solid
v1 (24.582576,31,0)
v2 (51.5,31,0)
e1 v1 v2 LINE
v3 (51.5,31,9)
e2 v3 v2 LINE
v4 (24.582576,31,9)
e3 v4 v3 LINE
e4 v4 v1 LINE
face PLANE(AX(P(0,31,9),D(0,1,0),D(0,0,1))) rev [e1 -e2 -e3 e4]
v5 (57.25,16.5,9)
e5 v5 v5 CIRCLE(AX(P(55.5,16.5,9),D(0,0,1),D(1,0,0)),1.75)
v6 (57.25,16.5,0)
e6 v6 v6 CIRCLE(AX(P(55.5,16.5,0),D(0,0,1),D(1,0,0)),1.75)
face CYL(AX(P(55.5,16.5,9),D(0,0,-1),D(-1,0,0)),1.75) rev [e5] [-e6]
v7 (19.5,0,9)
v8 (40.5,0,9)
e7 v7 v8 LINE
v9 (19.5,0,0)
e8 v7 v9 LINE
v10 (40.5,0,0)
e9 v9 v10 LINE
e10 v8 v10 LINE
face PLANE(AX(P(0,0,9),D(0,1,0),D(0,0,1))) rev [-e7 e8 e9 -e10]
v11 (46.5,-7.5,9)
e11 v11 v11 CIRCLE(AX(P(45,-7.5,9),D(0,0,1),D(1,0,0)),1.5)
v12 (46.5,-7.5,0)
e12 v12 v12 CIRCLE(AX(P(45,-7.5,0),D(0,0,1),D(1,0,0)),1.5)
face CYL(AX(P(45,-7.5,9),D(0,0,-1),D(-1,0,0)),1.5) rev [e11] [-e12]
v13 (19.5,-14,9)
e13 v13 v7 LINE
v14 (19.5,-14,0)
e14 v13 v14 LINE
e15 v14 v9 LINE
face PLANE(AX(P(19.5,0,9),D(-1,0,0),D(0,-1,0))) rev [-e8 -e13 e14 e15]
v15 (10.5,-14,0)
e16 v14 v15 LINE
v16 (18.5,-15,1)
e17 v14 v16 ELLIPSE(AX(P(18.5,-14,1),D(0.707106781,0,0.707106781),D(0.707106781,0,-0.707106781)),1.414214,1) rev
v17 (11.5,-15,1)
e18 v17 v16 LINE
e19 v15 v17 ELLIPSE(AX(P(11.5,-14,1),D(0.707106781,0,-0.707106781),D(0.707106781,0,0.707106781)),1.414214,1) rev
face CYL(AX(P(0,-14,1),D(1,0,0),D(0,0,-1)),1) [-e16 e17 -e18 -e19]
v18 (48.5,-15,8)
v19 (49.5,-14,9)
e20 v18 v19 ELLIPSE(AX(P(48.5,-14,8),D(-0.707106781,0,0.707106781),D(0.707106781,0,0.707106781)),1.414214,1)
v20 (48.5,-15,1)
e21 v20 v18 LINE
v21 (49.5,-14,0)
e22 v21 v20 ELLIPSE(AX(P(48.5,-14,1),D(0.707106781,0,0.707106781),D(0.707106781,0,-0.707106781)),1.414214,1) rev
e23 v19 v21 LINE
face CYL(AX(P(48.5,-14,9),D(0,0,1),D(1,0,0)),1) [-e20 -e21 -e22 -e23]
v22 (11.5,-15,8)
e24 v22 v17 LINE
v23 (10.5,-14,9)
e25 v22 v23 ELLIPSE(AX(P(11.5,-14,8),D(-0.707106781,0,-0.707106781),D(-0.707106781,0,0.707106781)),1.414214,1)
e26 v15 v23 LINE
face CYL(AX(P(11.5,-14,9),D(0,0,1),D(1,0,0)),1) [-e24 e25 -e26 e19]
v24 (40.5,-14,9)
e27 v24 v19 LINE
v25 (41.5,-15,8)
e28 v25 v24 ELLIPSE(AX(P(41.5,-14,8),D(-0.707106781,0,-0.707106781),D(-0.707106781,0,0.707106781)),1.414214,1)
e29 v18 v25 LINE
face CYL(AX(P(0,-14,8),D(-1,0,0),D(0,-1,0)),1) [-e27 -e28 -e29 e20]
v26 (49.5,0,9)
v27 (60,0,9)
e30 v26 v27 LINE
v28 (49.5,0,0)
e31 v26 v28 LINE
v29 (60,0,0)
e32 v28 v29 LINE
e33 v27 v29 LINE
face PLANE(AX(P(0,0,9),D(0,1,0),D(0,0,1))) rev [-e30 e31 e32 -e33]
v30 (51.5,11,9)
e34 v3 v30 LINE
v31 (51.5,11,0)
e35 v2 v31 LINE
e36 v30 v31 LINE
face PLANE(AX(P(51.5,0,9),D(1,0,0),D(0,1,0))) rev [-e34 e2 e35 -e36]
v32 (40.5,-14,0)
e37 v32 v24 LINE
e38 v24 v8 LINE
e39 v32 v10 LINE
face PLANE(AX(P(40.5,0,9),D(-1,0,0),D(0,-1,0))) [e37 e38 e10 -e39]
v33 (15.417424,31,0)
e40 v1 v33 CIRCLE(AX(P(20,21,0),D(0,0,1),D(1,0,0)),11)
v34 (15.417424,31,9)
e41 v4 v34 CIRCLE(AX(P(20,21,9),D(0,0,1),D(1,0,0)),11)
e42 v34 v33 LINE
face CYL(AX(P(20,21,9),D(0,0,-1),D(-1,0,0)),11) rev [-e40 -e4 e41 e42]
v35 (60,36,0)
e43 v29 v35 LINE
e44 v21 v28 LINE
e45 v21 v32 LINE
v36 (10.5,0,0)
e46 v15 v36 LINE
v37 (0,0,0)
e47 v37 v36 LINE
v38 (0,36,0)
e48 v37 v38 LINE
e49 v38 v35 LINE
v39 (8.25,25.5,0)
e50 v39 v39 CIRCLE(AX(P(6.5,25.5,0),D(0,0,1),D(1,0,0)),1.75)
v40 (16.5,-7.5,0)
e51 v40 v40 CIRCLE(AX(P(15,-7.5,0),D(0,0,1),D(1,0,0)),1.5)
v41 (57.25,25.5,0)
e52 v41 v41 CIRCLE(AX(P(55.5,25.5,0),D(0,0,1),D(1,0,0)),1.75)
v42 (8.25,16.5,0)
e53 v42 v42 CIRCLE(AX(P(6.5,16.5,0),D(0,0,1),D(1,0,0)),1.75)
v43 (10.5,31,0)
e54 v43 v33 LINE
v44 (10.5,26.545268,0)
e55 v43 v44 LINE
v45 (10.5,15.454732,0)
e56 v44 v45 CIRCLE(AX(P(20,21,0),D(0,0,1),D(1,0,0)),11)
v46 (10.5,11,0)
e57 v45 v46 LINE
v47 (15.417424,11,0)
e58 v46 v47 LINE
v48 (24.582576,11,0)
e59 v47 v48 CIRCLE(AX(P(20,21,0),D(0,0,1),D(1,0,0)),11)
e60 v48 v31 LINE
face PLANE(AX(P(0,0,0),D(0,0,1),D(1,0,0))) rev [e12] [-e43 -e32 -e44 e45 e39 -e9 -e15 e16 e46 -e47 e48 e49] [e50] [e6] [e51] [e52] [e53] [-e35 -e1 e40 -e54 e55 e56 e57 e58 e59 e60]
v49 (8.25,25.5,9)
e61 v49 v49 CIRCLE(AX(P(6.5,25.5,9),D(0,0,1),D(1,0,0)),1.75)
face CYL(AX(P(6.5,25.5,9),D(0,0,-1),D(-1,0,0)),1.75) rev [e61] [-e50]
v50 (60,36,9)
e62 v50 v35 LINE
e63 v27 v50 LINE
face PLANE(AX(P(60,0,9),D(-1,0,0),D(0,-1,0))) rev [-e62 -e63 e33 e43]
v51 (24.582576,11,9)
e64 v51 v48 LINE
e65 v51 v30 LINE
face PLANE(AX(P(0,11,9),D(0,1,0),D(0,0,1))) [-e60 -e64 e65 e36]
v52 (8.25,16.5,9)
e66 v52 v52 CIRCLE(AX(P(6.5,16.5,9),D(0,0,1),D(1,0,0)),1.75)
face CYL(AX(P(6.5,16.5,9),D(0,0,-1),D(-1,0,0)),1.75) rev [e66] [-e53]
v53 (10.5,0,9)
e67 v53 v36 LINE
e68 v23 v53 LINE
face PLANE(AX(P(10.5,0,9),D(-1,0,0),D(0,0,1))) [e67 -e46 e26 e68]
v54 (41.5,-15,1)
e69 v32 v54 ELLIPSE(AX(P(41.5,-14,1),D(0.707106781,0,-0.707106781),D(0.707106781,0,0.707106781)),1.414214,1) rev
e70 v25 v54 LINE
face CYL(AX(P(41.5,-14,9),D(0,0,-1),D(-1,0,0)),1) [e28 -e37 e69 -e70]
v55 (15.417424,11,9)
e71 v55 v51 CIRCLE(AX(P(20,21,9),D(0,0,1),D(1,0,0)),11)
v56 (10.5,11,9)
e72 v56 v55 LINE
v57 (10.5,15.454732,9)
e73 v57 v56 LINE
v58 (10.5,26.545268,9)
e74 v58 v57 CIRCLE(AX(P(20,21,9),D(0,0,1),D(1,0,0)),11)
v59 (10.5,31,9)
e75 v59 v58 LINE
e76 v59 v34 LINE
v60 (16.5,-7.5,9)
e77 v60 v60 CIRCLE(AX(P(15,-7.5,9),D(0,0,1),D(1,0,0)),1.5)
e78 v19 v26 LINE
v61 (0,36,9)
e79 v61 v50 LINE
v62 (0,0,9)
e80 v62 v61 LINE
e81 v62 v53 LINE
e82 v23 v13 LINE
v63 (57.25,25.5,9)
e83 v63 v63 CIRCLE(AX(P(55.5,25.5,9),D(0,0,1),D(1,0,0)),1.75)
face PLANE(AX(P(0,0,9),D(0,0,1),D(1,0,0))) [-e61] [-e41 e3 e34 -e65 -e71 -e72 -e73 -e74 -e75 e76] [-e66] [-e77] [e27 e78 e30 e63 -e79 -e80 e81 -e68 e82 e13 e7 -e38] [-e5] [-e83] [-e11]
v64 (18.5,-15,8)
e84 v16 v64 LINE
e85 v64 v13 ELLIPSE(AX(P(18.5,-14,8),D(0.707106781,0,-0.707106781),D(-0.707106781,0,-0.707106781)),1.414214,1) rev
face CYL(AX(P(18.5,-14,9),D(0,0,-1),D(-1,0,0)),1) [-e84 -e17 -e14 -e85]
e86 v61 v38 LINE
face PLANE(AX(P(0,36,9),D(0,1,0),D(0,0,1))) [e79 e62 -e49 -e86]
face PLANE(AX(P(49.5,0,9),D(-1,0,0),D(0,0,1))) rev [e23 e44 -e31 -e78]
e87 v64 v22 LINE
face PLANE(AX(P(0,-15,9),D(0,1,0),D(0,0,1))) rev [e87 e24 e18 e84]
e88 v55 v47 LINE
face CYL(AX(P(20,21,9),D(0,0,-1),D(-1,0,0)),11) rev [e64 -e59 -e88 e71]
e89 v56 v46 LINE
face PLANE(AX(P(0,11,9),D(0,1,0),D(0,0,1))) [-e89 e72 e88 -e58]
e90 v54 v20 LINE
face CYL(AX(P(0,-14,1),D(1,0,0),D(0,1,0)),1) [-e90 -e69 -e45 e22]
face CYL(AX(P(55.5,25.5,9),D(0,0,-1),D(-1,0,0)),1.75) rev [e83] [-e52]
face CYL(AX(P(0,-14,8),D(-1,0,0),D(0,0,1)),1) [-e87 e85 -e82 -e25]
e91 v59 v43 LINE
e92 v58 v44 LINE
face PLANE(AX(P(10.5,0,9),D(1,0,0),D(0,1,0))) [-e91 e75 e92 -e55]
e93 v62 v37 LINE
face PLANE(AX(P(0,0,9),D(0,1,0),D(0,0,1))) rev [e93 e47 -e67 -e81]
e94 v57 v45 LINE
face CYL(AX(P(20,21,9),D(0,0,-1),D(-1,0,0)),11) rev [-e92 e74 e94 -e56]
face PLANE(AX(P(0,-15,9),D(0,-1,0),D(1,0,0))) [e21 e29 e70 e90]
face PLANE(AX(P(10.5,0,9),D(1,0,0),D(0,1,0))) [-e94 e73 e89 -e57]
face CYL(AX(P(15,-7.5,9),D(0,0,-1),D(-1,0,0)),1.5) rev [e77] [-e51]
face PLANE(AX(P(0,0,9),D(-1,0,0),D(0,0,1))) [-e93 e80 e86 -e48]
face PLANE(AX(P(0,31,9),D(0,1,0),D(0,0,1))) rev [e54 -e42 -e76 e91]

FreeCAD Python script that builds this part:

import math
import FreeCAD as App
import Part
import Sketcher

V = App.Vector


def edges_at(feature, points):
    """Names of the edges that pass closest to the given points."""
    edges = feature.Shape.Edges
    near = lambda p: min(range(len(edges)), key=lambda i: edges[i].distToShape(Part.Vertex(*p))[0])
    return sorted({f"Edge{near(p) + 1}" for p in points})


def add_polygon(sketch, points):
    """Adds a closed chain of lines whose ends are joined by coincident constraints."""
    first, n = sketch.GeometryCount, len(points)
    for a, b in zip(points, points[1:] + points[:1]):
        sketch.addGeometry(Part.LineSegment(App.Vector(*a, 0), App.Vector(*b, 0)), False)
    for i in range(n):
        sketch.addConstraint(Sketcher.Constraint("Coincident", first + i, 2, first + (i + 1) % n, 1))

doc = App.newDocument("Part")
body = doc.addObject("PartDesign::Body", "Body")

# Sketch on XY plane
sketch1 = doc.addObject("Sketcher::SketchObject", "Sketch")
body.addObject(sketch1)
sketch1.AttachmentSupport = (doc.XY_Plane, [""])
sketch1.MapMode = "FlatFace"
add_polygon(sketch1, [(0, 36), (0, 0), (10.5, 0), (10.5, -15), (19.5, -15), (19.5, 0), (40.5, 0), (40.5, -15), (49.5, -15), (49.5, 0), (60, 0), (60, 36)])  # lines 0-11
sketch1.addGeometry(Part.Circle(V(15, -7.5, 0), V(0, 0, 1), 1.5), False)  # 12
sketch1.addGeometry(Part.Circle(V(45, -7.5, 0), V(0, 0, 1), 1.5), False)  # 13
sketch1.addGeometry(Part.Circle(V(6.5, 16.5, 0), V(0, 0, 1), 1.8), False)  # 14
sketch1.addGeometry(Part.ArcOfCircle(Part.Circle(V(20, 21, 0), V(0, 0, 1), 11), math.radians(150), math.radians(210)), False)  # 15
sketch1.addGeometry(Part.LineSegment(V(10.5, 26.5, 0), V(10.5, 31, 0)), False)  # 16
sketch1.addGeometry(Part.LineSegment(V(10.5, 31, 0), V(15.4, 31, 0)), False)  # 17
sketch1.addGeometry(Part.ArcOfCircle(Part.Circle(V(20, 21, 0), V(0, 0, 1), 11), math.radians(65), math.radians(115)), False)  # 18
sketch1.addGeometry(Part.LineSegment(V(24.6, 31, 0), V(51.5, 31, 0)), False)  # 19
sketch1.addGeometry(Part.LineSegment(V(51.5, 31, 0), V(51.5, 11, 0)), False)  # 20
sketch1.addGeometry(Part.LineSegment(V(51.5, 11, 0), V(24.6, 11, 0)), False)  # 21
sketch1.addGeometry(Part.ArcOfCircle(Part.Circle(V(20, 21, 0), V(0, 0, 1), 11), math.radians(-115), math.radians(-65)), False)  # 22
sketch1.addGeometry(Part.LineSegment(V(15.4, 11, 0), V(10.5, 11, 0)), False)  # 23
sketch1.addGeometry(Part.LineSegment(V(10.5, 11, 0), V(10.5, 15.5, 0)), False)  # 24
sketch1.addGeometry(Part.Circle(V(6.5, 25.5, 0), V(0, 0, 1), 1.8), False)  # 25
sketch1.addGeometry(Part.Circle(V(55.5, 16.5, 0), V(0, 0, 1), 1.8), False)  # 26
sketch1.addGeometry(Part.Circle(V(55.5, 25.5, 0), V(0, 0, 1), 1.8), False)  # 27
sketch1.addConstraint([
    Sketcher.Constraint("Coincident", 15, 1, 16, 1),
    Sketcher.Constraint("Coincident", 16, 2, 17, 1),
    Sketcher.Constraint("Coincident", 17, 2, 18, 2),
    Sketcher.Constraint("Coincident", 18, 1, 19, 1),
    Sketcher.Constraint("Coincident", 19, 2, 20, 1),
    Sketcher.Constraint("Coincident", 20, 2, 21, 1),
    Sketcher.Constraint("Coincident", 21, 2, 22, 2),
    Sketcher.Constraint("Coincident", 22, 1, 23, 1),
    Sketcher.Constraint("Coincident", 23, 2, 24, 1),
    Sketcher.Constraint("Coincident", 24, 2, 15, 2),
    Sketcher.Constraint("Vertical", 0),
    Sketcher.Constraint("Horizontal", 1),
    Sketcher.Constraint("Vertical", 2),
    Sketcher.Constraint("Horizontal", 3),
    Sketcher.Constraint("Vertical", 4),
    Sketcher.Constraint("Horizontal", 5),
    Sketcher.Constraint("Vertical", 6),
    Sketcher.Constraint("Horizontal", 7),
    Sketcher.Constraint("Vertical", 8),
    Sketcher.Constraint("Horizontal", 9),
    Sketcher.Constraint("Vertical", 10),
    Sketcher.Constraint("Horizontal", 11),
    Sketcher.Constraint("Vertical", 16),
    Sketcher.Constraint("Horizontal", 17),
    Sketcher.Constraint("Horizontal", 19),
    Sketcher.Constraint("Vertical", 20),
    Sketcher.Constraint("Horizontal", 21),
    Sketcher.Constraint("Horizontal", 23),
    Sketcher.Constraint("Vertical", 24),
    Sketcher.Constraint("Coincident", 0, 2, -1, 1),
    Sketcher.Constraint("Coincident", 18, 3, 15, 3),
    Sketcher.Constraint("Coincident", 22, 3, 15, 3),
    Sketcher.Constraint("Equal", 12, 13),
    Sketcher.Constraint("Equal", 15, 18),
    Sketcher.Constraint("Equal", 18, 22),
    Sketcher.Constraint("Equal", 14, 25),
    Sketcher.Constraint("Equal", 25, 26),
    Sketcher.Constraint("Equal", 26, 27),
    Sketcher.Constraint("PointOnObject", 4, 2, -1),
    Sketcher.Constraint("PointOnObject", 8, 2, -1),
    Sketcher.Constraint("Horizontal", 12, 3, 13, 3),
    Sketcher.Constraint("Horizontal", 14, 3, 26, 3),
    Sketcher.Constraint("Horizontal", 25, 3, 27, 3),
    Sketcher.Constraint("Horizontal", 3, 2, 6, 2),
    Sketcher.Constraint("Horizontal", 17, 2, 18, 1),
    Sketcher.Constraint("Horizontal", 21, 2, 22, 1),
    Sketcher.Constraint("Vertical", 14, 3, 25, 3),
    Sketcher.Constraint("Vertical", 26, 3, 27, 3),
    Sketcher.Constraint("Vertical", 2, 2, 15, 1),
    Sketcher.Constraint("Vertical", 18, 1, 21, 2),
    Sketcher.Constraint("Vertical", 16, 2, 23, 2),
    Sketcher.Constraint("Equal", 3, 7),
    Sketcher.Constraint("Equal", 1, 9),
    Sketcher.Constraint("Diameter", 12, 3.0),
    Sketcher.Constraint("Radius", 15, 11.0),
    Sketcher.Constraint("Diameter", 14, 3.5),
    Sketcher.Constraint("DistanceX", 3, 1, 3, 2, 9.0),
    Sketcher.Constraint("DistanceX", 5, 1, 5, 2, 21.0),
    Sketcher.Constraint("DistanceX", 11, 2, 11, 1, 60.0),
    Sketcher.Constraint("DistanceY", 0, 2, 0, 1, 36.0),
    Sketcher.Constraint("DistanceY", 2, 2, 2, 1, 15.0),
    Sketcher.Constraint("DistanceY", 20, 2, 20, 1, 20.0),
    Sketcher.Constraint("DistanceX", -1, 1, 12, 3, 15.0),
    Sketcher.Constraint("DistanceX", -1, 1, 13, 3, 45.0),
    Sketcher.Constraint("DistanceX", -1, 1, 15, 3, 20.0),
    Sketcher.Constraint("DistanceY", -1, 1, 15, 3, 21.0),
    Sketcher.Constraint("DistanceY", 12, 3, 14, 3, 24.0),
    Sketcher.Constraint("DistanceY", 14, 3, 25, 3, 9.0),
    Sketcher.Constraint("DistanceX", 14, 3, 1, 2, 4.0),
    Sketcher.Constraint("DistanceX", 5, 2, 26, 3, 15.0),
    Sketcher.Constraint("DistanceX", 19, 2, 27, 3, 4.0),
    Sketcher.Constraint("DistanceY", 12, 3, -1, 1, 7.5),
])
pad1 = doc.addObject("PartDesign::Pad", "Pad")
body.addObject(pad1)
pad1.Profile = sketch1
pad1.Length = 9
doc.recompute()

fillet = doc.addObject("PartDesign::Fillet", "Fillet")
body.addObject(fillet)
fillet.Base = (pad1, edges_at(pad1, [
    (45, -15, 0),
    (15, -15, 0),
    (49.5, -15, 4.5),
    (40.5, -15, 4.5),
    (19.5, -15, 4.5),
    (10.5, -15, 4.5),
    (15, -15, 9),
    (45, -15, 9),
]))
fillet.Radius = 1

doc.recompute()
